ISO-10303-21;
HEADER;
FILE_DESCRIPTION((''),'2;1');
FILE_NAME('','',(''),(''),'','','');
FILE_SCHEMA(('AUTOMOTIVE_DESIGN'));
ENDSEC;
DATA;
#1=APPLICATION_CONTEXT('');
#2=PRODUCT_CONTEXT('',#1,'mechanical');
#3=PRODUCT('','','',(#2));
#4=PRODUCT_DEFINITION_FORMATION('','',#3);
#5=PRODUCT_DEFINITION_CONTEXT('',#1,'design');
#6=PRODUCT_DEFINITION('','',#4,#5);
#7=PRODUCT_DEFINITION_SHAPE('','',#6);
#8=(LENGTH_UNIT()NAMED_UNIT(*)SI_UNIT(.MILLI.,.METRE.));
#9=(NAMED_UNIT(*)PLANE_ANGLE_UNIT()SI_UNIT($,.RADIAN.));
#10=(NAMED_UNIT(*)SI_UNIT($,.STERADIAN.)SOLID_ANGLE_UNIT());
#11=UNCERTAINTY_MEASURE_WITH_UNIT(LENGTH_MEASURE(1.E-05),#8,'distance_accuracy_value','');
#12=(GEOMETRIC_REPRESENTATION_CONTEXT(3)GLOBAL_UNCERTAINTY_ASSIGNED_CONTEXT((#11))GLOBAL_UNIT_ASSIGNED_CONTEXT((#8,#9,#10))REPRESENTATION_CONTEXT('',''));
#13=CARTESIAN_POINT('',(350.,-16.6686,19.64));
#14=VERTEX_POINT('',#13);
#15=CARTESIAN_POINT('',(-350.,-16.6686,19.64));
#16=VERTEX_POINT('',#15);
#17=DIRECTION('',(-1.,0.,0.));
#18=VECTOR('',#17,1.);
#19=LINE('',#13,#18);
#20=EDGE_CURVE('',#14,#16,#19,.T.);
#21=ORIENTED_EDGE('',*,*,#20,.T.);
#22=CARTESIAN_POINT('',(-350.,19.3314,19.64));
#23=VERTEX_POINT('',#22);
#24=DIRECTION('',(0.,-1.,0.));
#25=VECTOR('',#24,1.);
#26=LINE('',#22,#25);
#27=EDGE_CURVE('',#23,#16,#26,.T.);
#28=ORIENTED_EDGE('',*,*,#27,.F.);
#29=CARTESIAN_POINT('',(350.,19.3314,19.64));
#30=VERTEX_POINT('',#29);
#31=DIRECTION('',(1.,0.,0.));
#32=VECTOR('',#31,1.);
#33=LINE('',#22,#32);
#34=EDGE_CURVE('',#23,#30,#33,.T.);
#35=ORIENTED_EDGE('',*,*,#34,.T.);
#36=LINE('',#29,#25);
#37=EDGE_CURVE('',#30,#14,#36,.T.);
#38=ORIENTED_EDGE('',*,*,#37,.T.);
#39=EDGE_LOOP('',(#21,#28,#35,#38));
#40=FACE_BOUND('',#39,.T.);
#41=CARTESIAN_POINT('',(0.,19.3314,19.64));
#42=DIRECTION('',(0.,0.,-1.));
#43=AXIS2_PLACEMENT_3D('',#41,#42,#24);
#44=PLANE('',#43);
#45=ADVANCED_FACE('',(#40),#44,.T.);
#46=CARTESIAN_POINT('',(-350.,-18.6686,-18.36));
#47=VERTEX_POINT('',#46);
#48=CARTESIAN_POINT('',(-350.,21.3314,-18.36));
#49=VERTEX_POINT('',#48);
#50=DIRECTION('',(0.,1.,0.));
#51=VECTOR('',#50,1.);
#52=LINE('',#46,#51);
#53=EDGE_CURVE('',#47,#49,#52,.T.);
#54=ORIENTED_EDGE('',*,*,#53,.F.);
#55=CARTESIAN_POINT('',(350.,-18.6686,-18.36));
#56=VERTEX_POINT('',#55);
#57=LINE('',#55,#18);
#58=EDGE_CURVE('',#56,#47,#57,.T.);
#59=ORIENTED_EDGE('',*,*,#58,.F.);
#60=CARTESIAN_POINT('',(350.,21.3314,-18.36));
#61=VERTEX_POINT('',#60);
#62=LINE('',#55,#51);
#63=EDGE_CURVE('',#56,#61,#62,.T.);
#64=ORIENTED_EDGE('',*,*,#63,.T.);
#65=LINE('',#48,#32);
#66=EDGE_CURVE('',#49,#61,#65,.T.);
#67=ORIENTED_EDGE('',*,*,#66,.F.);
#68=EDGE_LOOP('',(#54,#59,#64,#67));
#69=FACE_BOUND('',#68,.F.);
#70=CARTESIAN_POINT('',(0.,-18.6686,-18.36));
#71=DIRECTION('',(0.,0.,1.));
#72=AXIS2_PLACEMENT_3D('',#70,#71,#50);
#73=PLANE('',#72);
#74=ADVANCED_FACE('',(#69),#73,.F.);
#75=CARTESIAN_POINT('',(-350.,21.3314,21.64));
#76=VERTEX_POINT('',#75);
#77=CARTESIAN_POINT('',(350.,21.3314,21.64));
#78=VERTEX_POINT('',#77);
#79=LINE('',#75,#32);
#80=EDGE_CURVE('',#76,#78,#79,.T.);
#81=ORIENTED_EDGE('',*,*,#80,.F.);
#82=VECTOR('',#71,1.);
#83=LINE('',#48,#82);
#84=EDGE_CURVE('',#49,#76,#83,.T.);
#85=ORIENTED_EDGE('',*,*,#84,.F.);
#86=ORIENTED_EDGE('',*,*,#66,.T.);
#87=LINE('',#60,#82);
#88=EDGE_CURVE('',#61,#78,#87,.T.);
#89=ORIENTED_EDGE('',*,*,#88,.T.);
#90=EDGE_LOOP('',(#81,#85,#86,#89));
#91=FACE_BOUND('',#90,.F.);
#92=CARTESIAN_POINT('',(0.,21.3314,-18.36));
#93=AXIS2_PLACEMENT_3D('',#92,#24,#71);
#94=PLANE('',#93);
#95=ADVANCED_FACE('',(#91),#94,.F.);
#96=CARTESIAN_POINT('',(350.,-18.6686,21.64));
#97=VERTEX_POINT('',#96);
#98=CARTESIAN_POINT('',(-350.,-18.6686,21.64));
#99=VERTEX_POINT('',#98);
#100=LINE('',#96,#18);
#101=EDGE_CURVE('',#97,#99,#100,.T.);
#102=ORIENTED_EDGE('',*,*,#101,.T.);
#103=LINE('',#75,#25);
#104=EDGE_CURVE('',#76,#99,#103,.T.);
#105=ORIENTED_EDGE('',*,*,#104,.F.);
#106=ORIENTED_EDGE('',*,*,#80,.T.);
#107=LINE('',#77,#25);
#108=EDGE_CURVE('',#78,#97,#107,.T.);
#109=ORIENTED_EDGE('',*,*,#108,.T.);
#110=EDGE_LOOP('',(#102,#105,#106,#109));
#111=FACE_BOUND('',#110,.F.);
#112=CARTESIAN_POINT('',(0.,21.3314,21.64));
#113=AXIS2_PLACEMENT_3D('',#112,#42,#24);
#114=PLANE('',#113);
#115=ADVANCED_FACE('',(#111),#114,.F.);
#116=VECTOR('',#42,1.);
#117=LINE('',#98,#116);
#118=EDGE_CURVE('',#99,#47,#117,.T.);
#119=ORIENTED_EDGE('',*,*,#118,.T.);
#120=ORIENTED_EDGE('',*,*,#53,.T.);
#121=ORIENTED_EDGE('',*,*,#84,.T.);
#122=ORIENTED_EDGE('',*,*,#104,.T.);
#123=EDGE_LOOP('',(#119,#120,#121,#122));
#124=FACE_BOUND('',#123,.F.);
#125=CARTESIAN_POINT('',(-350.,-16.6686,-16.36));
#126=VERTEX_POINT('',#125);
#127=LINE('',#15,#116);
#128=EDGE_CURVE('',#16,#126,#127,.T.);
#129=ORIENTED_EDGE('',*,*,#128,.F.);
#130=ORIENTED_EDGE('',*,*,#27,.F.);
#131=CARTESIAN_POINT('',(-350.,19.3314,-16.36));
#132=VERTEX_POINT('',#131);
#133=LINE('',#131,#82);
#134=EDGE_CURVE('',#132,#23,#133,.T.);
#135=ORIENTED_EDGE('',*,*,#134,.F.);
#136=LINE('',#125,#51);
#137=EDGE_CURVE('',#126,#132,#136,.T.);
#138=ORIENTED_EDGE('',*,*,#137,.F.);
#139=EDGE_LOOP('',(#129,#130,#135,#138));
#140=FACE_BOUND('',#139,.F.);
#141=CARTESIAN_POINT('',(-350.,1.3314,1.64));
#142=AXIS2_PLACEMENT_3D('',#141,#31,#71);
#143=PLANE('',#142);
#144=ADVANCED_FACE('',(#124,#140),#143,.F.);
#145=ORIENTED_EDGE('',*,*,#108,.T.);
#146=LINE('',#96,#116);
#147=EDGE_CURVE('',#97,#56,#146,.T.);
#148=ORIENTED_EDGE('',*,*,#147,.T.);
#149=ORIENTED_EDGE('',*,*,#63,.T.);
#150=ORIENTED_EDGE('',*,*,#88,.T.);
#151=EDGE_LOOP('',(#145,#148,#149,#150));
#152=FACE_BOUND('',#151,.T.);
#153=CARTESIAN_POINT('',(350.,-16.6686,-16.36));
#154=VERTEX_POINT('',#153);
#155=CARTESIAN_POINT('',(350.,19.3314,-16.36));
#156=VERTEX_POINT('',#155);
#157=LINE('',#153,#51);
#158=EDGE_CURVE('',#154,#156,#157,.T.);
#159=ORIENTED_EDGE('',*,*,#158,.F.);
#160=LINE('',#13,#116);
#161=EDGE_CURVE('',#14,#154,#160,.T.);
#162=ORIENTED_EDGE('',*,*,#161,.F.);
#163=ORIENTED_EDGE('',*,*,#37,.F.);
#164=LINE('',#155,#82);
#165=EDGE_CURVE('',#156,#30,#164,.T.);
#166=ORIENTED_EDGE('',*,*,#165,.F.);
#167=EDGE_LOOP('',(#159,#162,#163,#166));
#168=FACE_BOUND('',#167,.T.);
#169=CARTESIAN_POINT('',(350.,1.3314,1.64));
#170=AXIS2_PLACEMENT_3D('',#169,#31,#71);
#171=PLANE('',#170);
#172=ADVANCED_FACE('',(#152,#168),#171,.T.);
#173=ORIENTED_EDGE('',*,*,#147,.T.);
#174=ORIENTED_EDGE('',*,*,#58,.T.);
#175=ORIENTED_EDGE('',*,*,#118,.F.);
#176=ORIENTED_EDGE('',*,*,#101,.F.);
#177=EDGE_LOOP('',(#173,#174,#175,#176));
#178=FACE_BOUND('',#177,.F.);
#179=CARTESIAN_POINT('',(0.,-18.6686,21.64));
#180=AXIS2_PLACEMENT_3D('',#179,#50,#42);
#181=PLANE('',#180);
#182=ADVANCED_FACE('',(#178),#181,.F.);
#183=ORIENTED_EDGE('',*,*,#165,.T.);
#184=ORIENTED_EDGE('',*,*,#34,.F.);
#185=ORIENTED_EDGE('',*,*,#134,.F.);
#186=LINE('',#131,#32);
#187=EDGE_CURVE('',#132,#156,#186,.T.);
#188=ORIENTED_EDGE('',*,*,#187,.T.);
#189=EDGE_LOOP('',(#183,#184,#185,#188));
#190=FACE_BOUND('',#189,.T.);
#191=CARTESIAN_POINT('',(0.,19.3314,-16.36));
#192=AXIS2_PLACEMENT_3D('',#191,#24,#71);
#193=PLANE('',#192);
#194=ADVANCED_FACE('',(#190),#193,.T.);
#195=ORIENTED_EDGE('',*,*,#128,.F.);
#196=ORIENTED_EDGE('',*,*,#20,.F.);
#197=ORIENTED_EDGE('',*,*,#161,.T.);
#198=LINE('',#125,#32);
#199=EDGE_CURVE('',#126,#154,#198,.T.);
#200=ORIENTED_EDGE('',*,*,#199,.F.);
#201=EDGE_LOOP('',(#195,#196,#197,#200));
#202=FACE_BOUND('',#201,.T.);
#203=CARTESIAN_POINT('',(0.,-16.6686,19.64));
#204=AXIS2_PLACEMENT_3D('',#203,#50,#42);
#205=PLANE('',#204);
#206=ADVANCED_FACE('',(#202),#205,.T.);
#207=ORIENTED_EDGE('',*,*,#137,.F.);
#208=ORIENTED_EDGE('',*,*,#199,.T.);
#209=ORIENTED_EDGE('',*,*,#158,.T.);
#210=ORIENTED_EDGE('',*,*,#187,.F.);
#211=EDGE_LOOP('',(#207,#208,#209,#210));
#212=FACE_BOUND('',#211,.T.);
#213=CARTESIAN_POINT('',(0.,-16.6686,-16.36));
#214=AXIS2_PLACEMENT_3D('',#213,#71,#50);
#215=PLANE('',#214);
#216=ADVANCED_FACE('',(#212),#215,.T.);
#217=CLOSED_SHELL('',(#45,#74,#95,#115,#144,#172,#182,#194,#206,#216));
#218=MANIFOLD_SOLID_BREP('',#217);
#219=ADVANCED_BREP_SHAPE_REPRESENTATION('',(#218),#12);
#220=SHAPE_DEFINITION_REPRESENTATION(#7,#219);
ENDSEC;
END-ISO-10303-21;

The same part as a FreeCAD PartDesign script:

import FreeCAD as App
import Part
import Sketcher

V = App.Vector
Q = App.Units.Quantity

doc = App.newDocument("Part")
body = doc.addObject("PartDesign::Body", "Body")

sketch1 = body.newObject("Sketcher::SketchObject", "Sketch")
sketch1.AttachmentSupport = (doc.getObject("YZ_Plane"), [""])
sketch1.MapMode = "FlatFace"
sketch1.addGeometry([
    Part.LineSegment(V(-19, 22, 0), V(-19, -18, 0)),
    Part.LineSegment(V(-19, -18, 0), V(21, -18, 0)),
    Part.LineSegment(V(21, -18, 0), V(21, 22, 0)),
    Part.LineSegment(V(21, 22, 0), V(-19, 22, 0)),
    Part.LineSegment(V(19, -16, 0), V(-17, -16, 0)),
    Part.LineSegment(V(-17, -16, 0), V(-17, 20, 0)),
    Part.LineSegment(V(-17, 20, 0), V(19, 20, 0)),
    Part.LineSegment(V(19, 20, 0), V(19, -16, 0)),
], False)
sketch1.addConstraint([
    Sketcher.Constraint("Coincident", 0, 2, 1, 1),
    Sketcher.Constraint("Coincident", 1, 2, 2, 1),
    Sketcher.Constraint("Coincident", 2, 2, 3, 1),
    Sketcher.Constraint("Coincident", 3, 2, 0, 1),
    Sketcher.Constraint("Coincident", 4, 2, 5, 1),
    Sketcher.Constraint("Coincident", 5, 2, 6, 1),
    Sketcher.Constraint("Coincident", 6, 2, 7, 1),
    Sketcher.Constraint("Coincident", 7, 2, 4, 1),
    Sketcher.Constraint("Vertical", 0),
    Sketcher.Constraint("Horizontal", 1),
    Sketcher.Constraint("Vertical", 2),
    Sketcher.Constraint("Horizontal", 3),
    Sketcher.Constraint("Horizontal", 4),
    Sketcher.Constraint("Vertical", 5),
    Sketcher.Constraint("Horizontal", 6),
    Sketcher.Constraint("Vertical", 7),
    Sketcher.Constraint("Equal", 3, 0),
    Sketcher.Constraint("Equal", 6, 5),
    Sketcher.Constraint("DistanceX", 1, 1, 1, 2, Q("40 mm")),
    Sketcher.Constraint("DistanceX", 4, 2, 4, 1, Q("36 mm")),
    Sketcher.Constraint("DistanceX", 0, 2, 4, 2, Q("2 mm")),
    Sketcher.Constraint("DistanceY", 0, 2, 4, 2, Q("2 mm")),
    Sketcher.Constraint("DistanceY", 0, 2, -1, 1, Q("18.36 mm")),
    Sketcher.Constraint("DistanceX", 0, 2, -1, 1, Q("18.6686 mm")),
])
pad1 = body.newObject("PartDesign::Pad", "Pad")
pad1.Profile = sketch1
pad1.Length = 700
pad1.Midplane = True

doc.recompute()
